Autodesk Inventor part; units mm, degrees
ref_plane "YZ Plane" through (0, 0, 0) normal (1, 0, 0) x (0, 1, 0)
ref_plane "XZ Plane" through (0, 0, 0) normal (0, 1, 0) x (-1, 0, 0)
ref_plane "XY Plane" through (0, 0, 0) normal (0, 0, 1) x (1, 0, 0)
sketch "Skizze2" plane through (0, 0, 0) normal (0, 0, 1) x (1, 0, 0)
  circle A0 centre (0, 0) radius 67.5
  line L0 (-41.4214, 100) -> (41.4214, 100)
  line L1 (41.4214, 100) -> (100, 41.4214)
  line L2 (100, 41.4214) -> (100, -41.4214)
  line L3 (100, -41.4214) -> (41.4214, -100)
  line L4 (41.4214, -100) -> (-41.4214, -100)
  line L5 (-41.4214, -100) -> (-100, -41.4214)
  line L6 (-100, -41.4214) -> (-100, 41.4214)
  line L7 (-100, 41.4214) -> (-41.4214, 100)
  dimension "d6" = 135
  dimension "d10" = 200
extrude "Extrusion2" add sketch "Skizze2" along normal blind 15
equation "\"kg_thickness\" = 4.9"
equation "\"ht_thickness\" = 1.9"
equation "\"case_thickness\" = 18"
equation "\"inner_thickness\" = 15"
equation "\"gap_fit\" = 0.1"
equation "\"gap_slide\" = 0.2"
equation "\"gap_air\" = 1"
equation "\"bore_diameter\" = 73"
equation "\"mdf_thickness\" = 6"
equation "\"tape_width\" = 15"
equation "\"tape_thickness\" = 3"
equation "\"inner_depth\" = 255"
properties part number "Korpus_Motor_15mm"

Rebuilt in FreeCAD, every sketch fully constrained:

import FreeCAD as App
import Part
import Sketcher

V = App.Vector

doc = App.newDocument("Part")
body = doc.addObject("PartDesign::Body", "Body")

# Sketch on XY plane
sketch1 = body.newObject("Sketcher::SketchObject", "Sketch")
sketch1.AttachmentSupport = (doc.getObject("XY_Plane"), [""])
sketch1.MapMode = "FlatFace"
sketch1.addGeometry([
    Part.LineSegment(V(41, 100, 0), V(-41, 100, 0)),  # 0
    Part.LineSegment(V(-41, 100, 0), V(-100, 41, 0)),  # 1
    Part.LineSegment(V(-100, 41, 0), V(-100, -41, 0)),  # 2
    Part.LineSegment(V(-100, -41, 0), V(-41, -100, 0)),  # 3
    Part.LineSegment(V(-41, -100, 0), V(41, -100, 0)),  # 4
    Part.LineSegment(V(41, -100, 0), V(100, -41, 0)),  # 5
    Part.LineSegment(V(100, -41, 0), V(100, 41, 0)),  # 6
    Part.LineSegment(V(100, 41, 0), V(41, 100, 0)),  # 7
    Part.Circle(V(0, 0, 0), V(0, 0, 1), 68),  # 8
], False)
sketch1.addConstraint([
    Sketcher.Constraint("Coincident", 0, 2, 1, 1),
    Sketcher.Constraint("Coincident", 1, 2, 2, 1),
    Sketcher.Constraint("Coincident", 2, 2, 3, 1),
    Sketcher.Constraint("Coincident", 3, 2, 4, 1),
    Sketcher.Constraint("Coincident", 4, 2, 5, 1),
    Sketcher.Constraint("Coincident", 5, 2, 6, 1),
    Sketcher.Constraint("Coincident", 6, 2, 7, 1),
    Sketcher.Constraint("Coincident", 7, 2, 0, 1),
    Sketcher.Constraint("Horizontal", 0),
    Sketcher.Constraint("Vertical", 2),
    Sketcher.Constraint("Horizontal", 4),
    Sketcher.Constraint("Vertical", 6),
    Sketcher.Constraint("Coincident", 8, 3, -1, 1),
    Sketcher.Constraint("Symmetric", 0, 2, 4, 2, -1, 1),
    Sketcher.Constraint("Symmetric", 1, 2, 5, 2, -1, 1),
    Sketcher.Constraint("Perpendicular", 1, 3),
    Sketcher.Constraint("Perpendicular", 5, 7),
    Sketcher.Constraint("Horizontal", 2, 2, 5, 2),
    Sketcher.Constraint("Horizontal", 1, 2, 6, 2),
    Sketcher.Constraint("Vertical", 0, 2, 3, 2),
    Sketcher.Constraint("Equal", 4, 2),
    Sketcher.Constraint("Diameter", 8, 135.0),
    Sketcher.Constraint("DistanceY", 3, 2, 0, 2, 200.0),
    Sketcher.Constraint("DistanceX", 0, 2, 0, 1, 82.8428),
])
pad1 = body.newObject("PartDesign::Pad", "Pad")
pad1.Profile = sketch1
pad1.Length = 15

doc.recompute()
